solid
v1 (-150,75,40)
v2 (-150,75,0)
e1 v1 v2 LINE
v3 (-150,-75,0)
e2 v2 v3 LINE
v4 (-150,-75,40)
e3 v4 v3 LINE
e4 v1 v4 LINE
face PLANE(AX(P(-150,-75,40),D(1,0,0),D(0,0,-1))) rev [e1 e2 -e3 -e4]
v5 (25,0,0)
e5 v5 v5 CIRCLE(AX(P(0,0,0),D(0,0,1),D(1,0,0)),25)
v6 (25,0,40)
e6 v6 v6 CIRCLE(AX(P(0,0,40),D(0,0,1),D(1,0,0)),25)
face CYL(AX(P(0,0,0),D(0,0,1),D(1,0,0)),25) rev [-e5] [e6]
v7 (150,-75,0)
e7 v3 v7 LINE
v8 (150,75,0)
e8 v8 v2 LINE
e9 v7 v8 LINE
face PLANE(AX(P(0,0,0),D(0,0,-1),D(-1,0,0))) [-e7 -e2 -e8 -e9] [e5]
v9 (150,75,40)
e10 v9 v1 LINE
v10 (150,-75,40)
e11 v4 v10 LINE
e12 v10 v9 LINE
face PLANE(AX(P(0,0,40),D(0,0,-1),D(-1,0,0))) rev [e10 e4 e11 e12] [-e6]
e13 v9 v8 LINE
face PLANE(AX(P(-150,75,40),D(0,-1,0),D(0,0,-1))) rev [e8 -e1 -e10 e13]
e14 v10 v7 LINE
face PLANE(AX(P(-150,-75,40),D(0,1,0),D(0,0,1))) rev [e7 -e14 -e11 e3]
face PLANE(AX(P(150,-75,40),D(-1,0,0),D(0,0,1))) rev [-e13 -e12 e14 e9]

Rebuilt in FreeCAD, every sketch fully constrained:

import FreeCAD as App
import Part
import Sketcher

doc = App.newDocument("Part")
body = doc.addObject("PartDesign::Body", "Body")

# Sketch on XY plane
sketch1 = doc.addObject("Sketcher::SketchObject", "Sketch")
body.addObject(sketch1)
sketch1.AttachmentSupport = (doc.XY_Plane, [""])
sketch1.MapMode = "FlatFace"
sketch1.addGeometry(Part.LineSegment(App.Vector(-150, 75, 0), App.Vector(-150, -75, 0)), False)
sketch1.addGeometry(Part.LineSegment(App.Vector(-150, -75, 0), App.Vector(150, -75, 0)), False)
sketch1.addGeometry(Part.LineSegment(App.Vector(150, -75, 0), App.Vector(150, 75, 0)), False)
sketch1.addGeometry(Part.LineSegment(App.Vector(150, 75, 0), App.Vector(-150, 75, 0)), False)
sketch1.addConstraint(Sketcher.Constraint("Coincident", 0, 2, 1, 1))
sketch1.addConstraint(Sketcher.Constraint("Coincident", 1, 2, 2, 1))
sketch1.addConstraint(Sketcher.Constraint("Coincident", 2, 2, 3, 1))
sketch1.addConstraint(Sketcher.Constraint("Coincident", 3, 2, 0, 1))
sketch1.addConstraint(Sketcher.Constraint("Vertical", 0))
sketch1.addConstraint(Sketcher.Constraint("Horizontal", 1))
sketch1.addConstraint(Sketcher.Constraint("Vertical", 2))
sketch1.addConstraint(Sketcher.Constraint("Horizontal", 3))
sketch1.addConstraint(Sketcher.Constraint("Symmetric", 0, 2, 2, 2, -1, 1))
sketch1.addConstraint(Sketcher.Constraint("DistanceX", 1, 1, 1, 2, 300.0))
sketch1.addConstraint(Sketcher.Constraint("DistanceY", 0, 2, 0, 1, 150.0))
pad1 = doc.addObject("PartDesign::Pad", "Pad")
body.addObject(pad1)
pad1.Profile = sketch1
pad1.Length = 40

# Sketch on XY plane
sketch2 = doc.addObject("Sketcher::SketchObject", "Sketch001")
body.addObject(sketch2)
sketch2.AttachmentSupport = (doc.XY_Plane, [""])
sketch2.MapMode = "FlatFace"
sketch2.AttachmentOffset = App.Placement(App.Vector(0, 0, 40), App.Rotation())
sketch2.addGeometry(Part.Circle(App.Vector(0, 0, 0), App.Vector(0, 0, 1), 25), False)
sketch2.addConstraint(Sketcher.Constraint("Coincident", 0, 3, -1, 1))
sketch2.addConstraint(Sketcher.Constraint("Diameter", 0, 50.0))
pocket1 = doc.addObject("PartDesign::Pocket", "Pocket")
body.addObject(pocket1)
pocket1.Profile = sketch2
pocket1.Length = 40

doc.recompute()
